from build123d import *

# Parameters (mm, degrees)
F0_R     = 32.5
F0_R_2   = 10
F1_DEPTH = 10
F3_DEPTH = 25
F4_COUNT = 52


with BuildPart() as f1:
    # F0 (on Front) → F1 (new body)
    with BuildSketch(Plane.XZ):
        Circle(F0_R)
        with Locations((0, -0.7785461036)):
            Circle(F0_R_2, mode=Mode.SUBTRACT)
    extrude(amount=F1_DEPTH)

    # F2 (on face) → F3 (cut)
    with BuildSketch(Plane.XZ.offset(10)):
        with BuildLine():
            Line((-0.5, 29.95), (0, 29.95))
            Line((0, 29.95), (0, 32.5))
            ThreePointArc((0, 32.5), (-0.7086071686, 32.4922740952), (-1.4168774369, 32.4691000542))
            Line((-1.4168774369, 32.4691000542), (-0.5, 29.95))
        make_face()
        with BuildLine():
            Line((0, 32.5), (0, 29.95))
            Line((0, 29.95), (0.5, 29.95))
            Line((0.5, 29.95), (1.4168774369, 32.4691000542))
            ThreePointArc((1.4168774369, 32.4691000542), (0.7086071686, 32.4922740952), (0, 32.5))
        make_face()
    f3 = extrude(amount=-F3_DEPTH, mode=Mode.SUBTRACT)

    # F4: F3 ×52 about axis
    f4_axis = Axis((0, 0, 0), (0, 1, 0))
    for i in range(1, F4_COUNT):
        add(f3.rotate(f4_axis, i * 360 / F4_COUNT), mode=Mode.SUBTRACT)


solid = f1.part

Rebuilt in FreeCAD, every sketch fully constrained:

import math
import FreeCAD as App
import Part
import Sketcher
Q = App.Units.Quantity

doc = App.newDocument("Part")
body = doc.addObject("PartDesign::Body", "Body")

sketch1 = doc.addObject("Sketcher::SketchObject", "Sketch")
body.addObject(sketch1)
sketch1.AttachmentSupport = (doc.XZ_Plane, [""])
sketch1.MapMode = "FlatFace"
sketch1.addGeometry([
    Part.Circle(App.Vector(0, 0, 0), App.Vector(0, 0, 1), 32.5),
    Part.Circle(App.Vector(0, -0.778546, 0), App.Vector(0, 0, 1), 10),
], False)
sketch1.addConstraint([
    Sketcher.Constraint("Coincident", 0, 3, -1, 1),
    Sketcher.Constraint("PointOnObject", 1, 3, -2),
    Sketcher.Constraint("Diameter", 0, Q("65 mm")),
    Sketcher.Constraint("Diameter", 1, Q("20 mm")),
    Sketcher.Constraint("DistanceY", 1, 3, -1, 1, Q("0.778546 mm")),
])
pad1 = doc.addObject("PartDesign::Pad", "Pad")
body.addObject(pad1)
pad1.Profile = sketch1
pad1.Length = 10

sketch2 = doc.addObject("Sketcher::SketchObject", "Sketch001")
body.addObject(sketch2)
sketch2.AttachmentSupport = (doc.XZ_Plane, [""])
sketch2.MapMode = "FlatFace"
sketch2.AttachmentOffset = App.Placement(App.Vector(0, 0, 10), App.Rotation())
sketch2.addGeometry([
    Part.LineSegment(App.Vector(-0.5, 29.95, 0), App.Vector(0.5, 29.95, 0)),
    Part.LineSegment(App.Vector(0.5, 29.95, 0), App.Vector(1.416877, 32.4691, 0)),
    Part.ArcOfCircle(Part.Circle(App.Vector(0, 0, 0), App.Vector(0, 0, 1), 32.5), math.radians(87.501328), math.radians(90)),
    Part.ArcOfCircle(Part.Circle(App.Vector(0, 0, 0), App.Vector(0, 0, 1), 32.5), math.radians(90), math.radians(92.498672)),
    Part.LineSegment(App.Vector(-1.416877, 32.4691, 0), App.Vector(-0.5, 29.95, 0)),
], False)
sketch2.addConstraint([
    Sketcher.Constraint("Coincident", 0, 2, 1, 1),
    Sketcher.Constraint("Coincident", 1, 2, 2, 1),
    Sketcher.Constraint("Tangent", 2, 2, 3, 1),
    Sketcher.Constraint("Coincident", 3, 2, 4, 1),
    Sketcher.Constraint("Coincident", 4, 2, 0, 1),
    Sketcher.Constraint("Horizontal", 0),
    Sketcher.Constraint("Coincident", 2, 3, -1, 1),
    Sketcher.Constraint("Equal", 2, 3),
    Sketcher.Constraint("PointOnObject", 2, 2, -2),
    Sketcher.Constraint("Horizontal", 1, 2, 3, 2),
    Sketcher.Constraint("Equal", 1, 4),
    Sketcher.Constraint("Radius", 2, Q("32.5 mm")),
    Sketcher.Constraint("DistanceX", 0, 1, 0, 2, Q("1 mm")),
    Sketcher.Constraint("Angle", 1, Q("70 deg")),
    Sketcher.Constraint("DistanceY", -1, 1, 0, 2, Q("29.95 mm")),
])
pocket1 = doc.addObject("PartDesign::Pocket", "Pocket")
body.addObject(pocket1)
pocket1.Profile = sketch2
pocket1.Length = 25
doc.recompute()

polarpattern = doc.addObject("PartDesign::PolarPattern", "PolarPattern")
body.addObject(polarpattern)
polarpattern.Originals = [pocket1]
polarpattern.Axis = (doc.Y_Axis, [""])
polarpattern.Angle = 360
polarpattern.Occurrences = 52
body.Tip = polarpattern

doc.recompute()
